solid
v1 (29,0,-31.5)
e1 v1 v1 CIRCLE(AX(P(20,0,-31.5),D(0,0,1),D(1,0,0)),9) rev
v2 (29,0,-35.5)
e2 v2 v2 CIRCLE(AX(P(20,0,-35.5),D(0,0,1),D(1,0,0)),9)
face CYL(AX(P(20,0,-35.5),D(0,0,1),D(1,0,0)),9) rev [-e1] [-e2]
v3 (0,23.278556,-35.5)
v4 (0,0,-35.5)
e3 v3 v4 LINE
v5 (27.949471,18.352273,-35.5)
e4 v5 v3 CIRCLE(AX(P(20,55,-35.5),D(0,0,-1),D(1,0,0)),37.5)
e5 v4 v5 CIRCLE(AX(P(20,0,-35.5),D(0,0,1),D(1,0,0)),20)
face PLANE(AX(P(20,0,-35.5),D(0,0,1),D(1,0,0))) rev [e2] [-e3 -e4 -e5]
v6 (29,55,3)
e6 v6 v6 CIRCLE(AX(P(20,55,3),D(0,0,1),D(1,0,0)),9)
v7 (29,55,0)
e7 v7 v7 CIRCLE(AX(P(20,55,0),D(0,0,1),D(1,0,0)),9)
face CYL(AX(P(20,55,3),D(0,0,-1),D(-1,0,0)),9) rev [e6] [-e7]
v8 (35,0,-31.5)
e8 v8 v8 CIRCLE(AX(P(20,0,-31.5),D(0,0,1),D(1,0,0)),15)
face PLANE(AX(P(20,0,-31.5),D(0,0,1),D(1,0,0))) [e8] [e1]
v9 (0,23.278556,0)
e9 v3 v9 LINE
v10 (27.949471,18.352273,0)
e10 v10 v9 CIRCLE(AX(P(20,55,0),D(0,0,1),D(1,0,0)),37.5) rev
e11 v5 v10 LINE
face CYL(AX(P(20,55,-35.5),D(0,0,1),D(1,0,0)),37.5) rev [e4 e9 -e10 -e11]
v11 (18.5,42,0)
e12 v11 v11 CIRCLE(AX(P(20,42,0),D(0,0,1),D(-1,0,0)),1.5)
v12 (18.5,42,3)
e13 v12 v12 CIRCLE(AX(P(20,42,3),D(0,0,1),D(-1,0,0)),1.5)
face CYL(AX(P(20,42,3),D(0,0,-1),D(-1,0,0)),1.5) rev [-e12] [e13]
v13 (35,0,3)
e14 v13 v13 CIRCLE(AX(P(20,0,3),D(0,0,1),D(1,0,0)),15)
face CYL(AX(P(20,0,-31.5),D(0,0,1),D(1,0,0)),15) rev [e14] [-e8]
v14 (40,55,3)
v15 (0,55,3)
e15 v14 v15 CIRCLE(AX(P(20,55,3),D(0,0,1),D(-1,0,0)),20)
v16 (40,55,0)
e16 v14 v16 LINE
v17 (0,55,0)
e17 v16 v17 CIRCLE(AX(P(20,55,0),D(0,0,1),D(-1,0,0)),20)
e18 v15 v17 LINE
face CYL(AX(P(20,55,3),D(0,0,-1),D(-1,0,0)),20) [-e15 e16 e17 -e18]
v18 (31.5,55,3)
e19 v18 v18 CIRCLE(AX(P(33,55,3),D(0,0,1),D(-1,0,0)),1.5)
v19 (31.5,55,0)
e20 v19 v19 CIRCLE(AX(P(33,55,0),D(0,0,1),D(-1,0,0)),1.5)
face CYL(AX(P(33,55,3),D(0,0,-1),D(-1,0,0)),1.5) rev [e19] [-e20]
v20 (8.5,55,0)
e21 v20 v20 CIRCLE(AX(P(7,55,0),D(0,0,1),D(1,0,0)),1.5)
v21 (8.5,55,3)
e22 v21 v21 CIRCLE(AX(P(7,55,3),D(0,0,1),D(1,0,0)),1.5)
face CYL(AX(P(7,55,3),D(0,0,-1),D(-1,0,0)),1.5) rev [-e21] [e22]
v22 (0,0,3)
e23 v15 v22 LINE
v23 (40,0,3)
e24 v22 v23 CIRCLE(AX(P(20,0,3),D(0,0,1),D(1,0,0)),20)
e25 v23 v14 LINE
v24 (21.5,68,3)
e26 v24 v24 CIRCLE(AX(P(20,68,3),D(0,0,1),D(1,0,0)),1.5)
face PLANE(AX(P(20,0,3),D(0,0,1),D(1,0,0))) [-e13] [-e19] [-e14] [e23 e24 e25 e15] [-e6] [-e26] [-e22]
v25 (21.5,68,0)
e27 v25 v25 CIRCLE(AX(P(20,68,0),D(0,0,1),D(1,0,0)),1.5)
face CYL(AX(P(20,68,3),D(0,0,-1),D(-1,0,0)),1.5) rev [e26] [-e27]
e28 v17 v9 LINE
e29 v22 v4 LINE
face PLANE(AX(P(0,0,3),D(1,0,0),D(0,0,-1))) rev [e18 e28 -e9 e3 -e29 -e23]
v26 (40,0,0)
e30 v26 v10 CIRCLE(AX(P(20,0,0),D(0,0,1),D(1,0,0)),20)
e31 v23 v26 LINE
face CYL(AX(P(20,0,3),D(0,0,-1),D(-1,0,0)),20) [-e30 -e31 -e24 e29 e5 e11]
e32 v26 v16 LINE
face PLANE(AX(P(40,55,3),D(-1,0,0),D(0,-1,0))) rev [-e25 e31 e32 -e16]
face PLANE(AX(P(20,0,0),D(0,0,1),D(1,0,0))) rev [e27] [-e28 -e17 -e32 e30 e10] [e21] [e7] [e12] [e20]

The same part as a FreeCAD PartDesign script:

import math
import FreeCAD as App
import Part
import Sketcher

V = App.Vector

doc = App.newDocument("Part")
body = doc.addObject("PartDesign::Body", "Body")

# Sketch on XY plane
sketch1 = body.newObject("Sketcher::SketchObject", "Sketch")
sketch1.AttachmentSupport = (doc.getObject("XY_Plane"), [""])
sketch1.MapMode = "FlatFace"
sketch1.addGeometry([
    Part.LineSegment(V(0, 55, 0), V(0, 0, 0)),  # 0
    Part.ArcOfCircle(Part.Circle(V(20, 0, 0), V(0, 0, 1), 20), math.radians(180), math.radians(360)),  # 1
    Part.LineSegment(V(40, 0, 0), V(40, 55, 0)),  # 2
    Part.ArcOfCircle(Part.Circle(V(20, 55, 0), V(0, 0, 1), 20), math.radians(0), math.radians(180)),  # 3
    Part.Circle(V(20, 0, 0), V(0, 0, 1), 15),  # 4
    Part.Circle(V(33, 55, 0), V(0, 0, 1), 1.5),  # 5
    Part.Circle(V(20, 42, 0), V(0, 0, 1), 1.5),  # 6
    Part.Circle(V(20, 55, 0), V(0, 0, 1), 9),  # 7
    Part.Circle(V(20, 68, 0), V(0, 0, 1), 1.5),  # 8
    Part.Circle(V(7, 55, 0), V(0, 0, 1), 1.5),  # 9
], False)
sketch1.addConstraint([
    Sketcher.Constraint("Tangent", 0, 2, 1, 1),
    Sketcher.Constraint("Tangent", 1, 2, 2, 1),
    Sketcher.Constraint("Tangent", 2, 2, 3, 1),
    Sketcher.Constraint("Tangent", 3, 2, 0, 1),
    Sketcher.Constraint("Vertical", 0),
    Sketcher.Constraint("Vertical", 2),
    Sketcher.Constraint("Coincident", 0, 2, -1, 1),
    Sketcher.Constraint("Coincident", 4, 3, 1, 3),
    Sketcher.Constraint("Coincident", 7, 3, 3, 3),
    Sketcher.Constraint("Equal", 5, 6),
    Sketcher.Constraint("Equal", 6, 8),
    Sketcher.Constraint("Equal", 8, 9),
    Sketcher.Constraint("Horizontal", 3, 3, 5, 3),
    Sketcher.Constraint("Horizontal", 7, 3, 9, 3),
    Sketcher.Constraint("Vertical", 4, 3, 6, 3),
    Sketcher.Constraint("Vertical", 7, 3, 8, 3),
    Sketcher.Constraint("Diameter", 4, 30.0),
    Sketcher.Constraint("Diameter", 5, 3.0),
    Sketcher.Constraint("Diameter", 7, 18.0),
    Sketcher.Constraint("Radius", 1, 20.0),
    Sketcher.Constraint("DistanceY", 0, 2, 0, 1, 55.0),
    Sketcher.Constraint("DistanceX", -1, 1, 5, 3, 33.0),
    Sketcher.Constraint("DistanceY", -1, 1, 6, 3, 42.0),
    Sketcher.Constraint("DistanceY", -1, 1, 8, 3, 68.0),
    Sketcher.Constraint("DistanceX", -1, 1, 9, 3, 7.0),
])
pad1 = body.newObject("PartDesign::Pad", "Pad")
pad1.Profile = sketch1
pad1.Length = 3

# Sketch on XY plane
sketch2 = body.newObject("Sketcher::SketchObject", "Sketch001")
sketch2.AttachmentSupport = (doc.getObject("XY_Plane"), [""])
sketch2.MapMode = "FlatFace"
sketch2.AttachmentOffset = App.Placement(V(0, 0, 3), App.Rotation())
sketch2.addGeometry([
    Part.LineSegment(V(0, 23.278556, 0), V(0, 0, 0)),
    Part.ArcOfCircle(Part.Circle(V(20, 0, 0), V(0, 0, 1), 20), math.radians(180), math.radians(426.579668)),
    Part.ArcOfCircle(Part.Circle(V(20, 55, 0), V(0, 0, 1), 37.5), math.radians(-122.230953), math.radians(-77.761244)),
    Part.Circle(V(20, 0, 0), V(0, 0, 1), 9),
], False)
sketch2.addConstraint([
    Sketcher.Constraint("Tangent", 0, 2, 1, 1),
    Sketcher.Constraint("Coincident", 1, 2, 2, 2),
    Sketcher.Constraint("Coincident", 2, 1, 0, 1),
    Sketcher.Constraint("Vertical", 0),
    Sketcher.Constraint("Coincident", 0, 2, -1, 1),
    Sketcher.Constraint("Coincident", 3, 3, 1, 3),
    Sketcher.Constraint("Vertical", 1, 3, 2, 3),
    Sketcher.Constraint("Diameter", 3, 18.0),
    Sketcher.Constraint("Radius", 1, 20.0),
    Sketcher.Constraint("Radius", 2, 37.5),
    Sketcher.Constraint("DistanceY", -1, 1, 2, 3, 55.0),
])
pad2 = body.newObject("PartDesign::Pad", "Pad001")
pad2.Profile = sketch2
pad2.Length = 38.5
pad2.Reversed = True

# Sketch on XY plane
sketch3 = body.newObject("Sketcher::SketchObject", "Sketch002")
sketch3.AttachmentSupport = (doc.getObject("XY_Plane"), [""])
sketch3.MapMode = "FlatFace"
sketch3.AttachmentOffset = App.Placement(V(0, 0, 3), App.Rotation())
sketch3.addGeometry(Part.Circle(V(20, 0, 0), V(0, 0, 1), 15), False)
sketch3.addConstraint([
    Sketcher.Constraint("PointOnObject", 0, 3, -1),
    Sketcher.Constraint("Diameter", 0, 30.0),
    Sketcher.Constraint("DistanceX", -1, 1, 0, 3, 20.0),
])
pocket1 = body.newObject("PartDesign::Pocket", "Pocket")
pocket1.Profile = sketch3
pocket1.Length = 34.5

doc.recompute()
